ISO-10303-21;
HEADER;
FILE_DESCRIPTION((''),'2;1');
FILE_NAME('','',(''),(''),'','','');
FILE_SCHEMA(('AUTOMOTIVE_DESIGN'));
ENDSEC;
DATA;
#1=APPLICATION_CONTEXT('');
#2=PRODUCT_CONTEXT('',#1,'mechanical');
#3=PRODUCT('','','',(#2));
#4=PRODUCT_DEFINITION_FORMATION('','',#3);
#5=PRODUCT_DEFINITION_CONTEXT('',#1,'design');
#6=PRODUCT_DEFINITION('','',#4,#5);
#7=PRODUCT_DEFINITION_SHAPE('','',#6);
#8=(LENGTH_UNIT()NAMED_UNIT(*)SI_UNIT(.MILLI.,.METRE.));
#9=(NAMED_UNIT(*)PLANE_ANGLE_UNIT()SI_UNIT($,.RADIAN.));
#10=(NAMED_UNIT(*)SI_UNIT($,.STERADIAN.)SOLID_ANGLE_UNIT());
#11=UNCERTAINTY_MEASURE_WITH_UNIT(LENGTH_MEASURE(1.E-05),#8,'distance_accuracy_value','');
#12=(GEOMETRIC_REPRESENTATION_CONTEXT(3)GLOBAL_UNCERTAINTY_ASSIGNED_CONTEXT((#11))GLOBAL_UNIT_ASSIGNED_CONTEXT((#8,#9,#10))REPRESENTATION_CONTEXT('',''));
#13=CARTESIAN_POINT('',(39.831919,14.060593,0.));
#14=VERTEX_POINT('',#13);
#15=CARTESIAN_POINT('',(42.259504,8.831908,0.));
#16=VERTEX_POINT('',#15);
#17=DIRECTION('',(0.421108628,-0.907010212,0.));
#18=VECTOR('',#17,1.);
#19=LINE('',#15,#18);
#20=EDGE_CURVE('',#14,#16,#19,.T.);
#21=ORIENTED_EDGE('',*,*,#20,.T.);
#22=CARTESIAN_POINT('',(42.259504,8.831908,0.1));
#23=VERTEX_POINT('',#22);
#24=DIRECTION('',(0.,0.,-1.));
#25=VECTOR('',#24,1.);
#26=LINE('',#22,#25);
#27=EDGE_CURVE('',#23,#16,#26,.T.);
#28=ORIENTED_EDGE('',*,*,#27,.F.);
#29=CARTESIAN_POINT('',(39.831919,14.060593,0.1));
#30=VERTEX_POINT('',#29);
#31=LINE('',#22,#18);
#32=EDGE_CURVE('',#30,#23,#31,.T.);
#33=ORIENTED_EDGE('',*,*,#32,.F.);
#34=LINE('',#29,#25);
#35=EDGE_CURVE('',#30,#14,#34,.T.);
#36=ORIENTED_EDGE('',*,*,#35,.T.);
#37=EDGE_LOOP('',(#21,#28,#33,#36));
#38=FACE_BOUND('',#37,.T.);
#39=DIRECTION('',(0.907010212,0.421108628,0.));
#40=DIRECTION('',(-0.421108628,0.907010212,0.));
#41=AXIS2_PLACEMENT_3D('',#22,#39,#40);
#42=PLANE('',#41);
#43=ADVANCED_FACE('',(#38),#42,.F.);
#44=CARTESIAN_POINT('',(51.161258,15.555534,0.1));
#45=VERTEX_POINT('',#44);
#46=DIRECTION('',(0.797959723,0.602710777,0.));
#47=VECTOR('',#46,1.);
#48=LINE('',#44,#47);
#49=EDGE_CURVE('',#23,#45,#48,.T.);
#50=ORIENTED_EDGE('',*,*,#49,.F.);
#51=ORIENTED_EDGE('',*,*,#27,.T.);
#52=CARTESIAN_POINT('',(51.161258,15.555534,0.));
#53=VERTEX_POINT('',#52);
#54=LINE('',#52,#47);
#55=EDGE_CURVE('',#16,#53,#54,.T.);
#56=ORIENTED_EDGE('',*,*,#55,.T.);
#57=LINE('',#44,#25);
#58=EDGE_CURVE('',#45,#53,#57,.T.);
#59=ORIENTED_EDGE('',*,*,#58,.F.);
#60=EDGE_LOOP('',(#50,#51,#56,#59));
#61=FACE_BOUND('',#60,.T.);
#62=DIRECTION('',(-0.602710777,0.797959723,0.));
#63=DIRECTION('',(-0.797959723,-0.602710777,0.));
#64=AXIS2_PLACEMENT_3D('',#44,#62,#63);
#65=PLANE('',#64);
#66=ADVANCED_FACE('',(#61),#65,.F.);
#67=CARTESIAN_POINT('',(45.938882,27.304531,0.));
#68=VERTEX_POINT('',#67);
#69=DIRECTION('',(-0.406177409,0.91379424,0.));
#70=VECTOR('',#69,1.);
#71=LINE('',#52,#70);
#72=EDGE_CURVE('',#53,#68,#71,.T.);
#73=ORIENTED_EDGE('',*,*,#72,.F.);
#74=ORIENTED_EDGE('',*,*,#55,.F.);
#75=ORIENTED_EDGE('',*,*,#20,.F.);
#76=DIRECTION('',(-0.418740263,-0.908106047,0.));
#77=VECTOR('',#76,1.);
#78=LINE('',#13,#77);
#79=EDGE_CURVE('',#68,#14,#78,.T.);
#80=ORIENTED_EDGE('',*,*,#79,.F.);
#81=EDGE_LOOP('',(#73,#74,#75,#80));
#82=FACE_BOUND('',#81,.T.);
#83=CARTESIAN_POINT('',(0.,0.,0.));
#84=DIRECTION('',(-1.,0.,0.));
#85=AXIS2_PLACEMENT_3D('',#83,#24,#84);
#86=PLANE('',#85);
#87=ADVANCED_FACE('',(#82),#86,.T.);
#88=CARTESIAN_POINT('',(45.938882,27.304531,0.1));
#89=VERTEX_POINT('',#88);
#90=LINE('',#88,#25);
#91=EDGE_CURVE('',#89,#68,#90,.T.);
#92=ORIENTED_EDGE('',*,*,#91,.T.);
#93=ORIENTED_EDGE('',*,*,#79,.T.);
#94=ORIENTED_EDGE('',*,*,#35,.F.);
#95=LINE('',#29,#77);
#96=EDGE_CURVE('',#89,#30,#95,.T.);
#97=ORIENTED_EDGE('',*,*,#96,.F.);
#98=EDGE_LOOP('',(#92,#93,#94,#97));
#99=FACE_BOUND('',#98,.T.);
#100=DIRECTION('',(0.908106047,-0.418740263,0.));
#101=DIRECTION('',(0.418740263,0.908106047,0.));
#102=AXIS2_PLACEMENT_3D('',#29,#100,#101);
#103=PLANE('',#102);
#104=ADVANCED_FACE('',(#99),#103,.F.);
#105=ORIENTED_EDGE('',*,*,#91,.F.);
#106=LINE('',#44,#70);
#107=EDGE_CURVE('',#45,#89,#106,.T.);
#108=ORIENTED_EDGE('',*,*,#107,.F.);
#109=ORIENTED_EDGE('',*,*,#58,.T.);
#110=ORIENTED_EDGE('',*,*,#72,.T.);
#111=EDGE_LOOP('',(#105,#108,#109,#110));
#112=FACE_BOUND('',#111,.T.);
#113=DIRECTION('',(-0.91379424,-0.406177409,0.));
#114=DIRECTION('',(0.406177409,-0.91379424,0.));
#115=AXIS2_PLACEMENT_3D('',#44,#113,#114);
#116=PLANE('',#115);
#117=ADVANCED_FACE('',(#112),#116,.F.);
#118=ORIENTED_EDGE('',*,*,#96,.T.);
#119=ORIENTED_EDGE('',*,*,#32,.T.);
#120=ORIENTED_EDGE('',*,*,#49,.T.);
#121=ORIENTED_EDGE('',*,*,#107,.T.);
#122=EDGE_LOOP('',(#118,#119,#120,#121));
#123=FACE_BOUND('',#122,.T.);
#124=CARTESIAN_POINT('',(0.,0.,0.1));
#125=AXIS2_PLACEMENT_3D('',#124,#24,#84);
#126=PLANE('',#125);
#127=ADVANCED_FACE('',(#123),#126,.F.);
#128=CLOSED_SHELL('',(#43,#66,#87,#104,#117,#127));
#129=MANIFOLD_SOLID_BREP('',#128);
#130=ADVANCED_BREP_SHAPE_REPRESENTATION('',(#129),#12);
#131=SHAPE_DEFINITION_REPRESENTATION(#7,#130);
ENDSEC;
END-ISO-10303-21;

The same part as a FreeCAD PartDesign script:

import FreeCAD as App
import Part
import Sketcher


def add_polygon(sketch, points):
    """Adds a closed chain of lines whose ends are joined by coincident constraints."""
    first, n = sketch.GeometryCount, len(points)
    for a, b in zip(points, points[1:] + points[:1]):
        sketch.addGeometry(Part.LineSegment(App.Vector(*a, 0), App.Vector(*b, 0)), False)
    for i in range(n):
        sketch.addConstraint(Sketcher.Constraint("Coincident", first + i, 2, first + (i + 1) % n, 1))

doc = App.newDocument("Part")
body = doc.addObject("PartDesign::Body", "Body")

# Sketch on XY plane
sketch1 = body.newObject("Sketcher::SketchObject", "Sketch")
sketch1.AttachmentSupport = (doc.getObject("XY_Plane"), [""])
sketch1.MapMode = "FlatFace"
add_polygon(sketch1, [(51, 16), (46, 27), (40, 14), (42, 9)])  # lines 0-3
sketch1.addConstraint(Sketcher.Constraint("Distance", 1, 14.584132))
sketch1.addConstraint(Sketcher.Constraint("Distance", 2, 5.764748))
sketch1.addConstraint(Sketcher.Constraint("DistanceX", -1, 1, 0, 2, 45.938882))
sketch1.addConstraint(Sketcher.Constraint("DistanceY", -1, 1, 0, 2, 27.304531))
sketch1.addConstraint(Sketcher.Constraint("DistanceX", -1, 1, 1, 2, 39.831919))
sketch1.addConstraint(Sketcher.Constraint("DistanceX", -1, 1, 3, 2, 51.161258))
sketch1.addConstraint(Sketcher.Constraint("DistanceY", 1, 2, 3, 2, 1.494941))
sketch1.addConstraint(Sketcher.Constraint("Distance", 3, 11.155643))
pad1 = body.newObject("PartDesign::Pad", "Pad")
pad1.Profile = sketch1
pad1.Length = 0.1

doc.recompute()
